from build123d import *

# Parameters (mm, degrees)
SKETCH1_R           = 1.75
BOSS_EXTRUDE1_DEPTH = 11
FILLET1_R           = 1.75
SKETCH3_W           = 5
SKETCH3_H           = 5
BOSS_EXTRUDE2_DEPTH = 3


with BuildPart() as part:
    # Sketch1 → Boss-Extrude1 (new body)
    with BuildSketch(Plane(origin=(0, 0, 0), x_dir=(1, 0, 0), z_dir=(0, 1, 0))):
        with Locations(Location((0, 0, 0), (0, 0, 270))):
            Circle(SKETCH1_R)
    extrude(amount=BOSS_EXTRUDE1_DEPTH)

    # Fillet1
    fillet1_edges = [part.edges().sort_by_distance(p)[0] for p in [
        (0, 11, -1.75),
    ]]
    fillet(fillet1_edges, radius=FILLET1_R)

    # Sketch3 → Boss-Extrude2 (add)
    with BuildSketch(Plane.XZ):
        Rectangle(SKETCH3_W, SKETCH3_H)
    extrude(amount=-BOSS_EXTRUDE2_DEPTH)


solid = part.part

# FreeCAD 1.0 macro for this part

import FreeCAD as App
import Part
import Sketcher

V = App.Vector
Q = App.Units.Quantity


def edges_at(feature, points):
    """Names of the edges that pass closest to the given points."""
    edges = feature.Shape.Edges
    near = lambda p: min(range(len(edges)), key=lambda i: edges[i].distToShape(Part.Vertex(*p))[0])
    return sorted({f"Edge{near(p) + 1}" for p in points})

doc = App.newDocument("Part")
body = doc.addObject("PartDesign::Body", "Body")

# Sketch on XZ plane
sketch1 = body.newObject("Sketcher::SketchObject", "Sketch")
sketch1.AttachmentSupport = (doc.getObject("XZ_Plane"), [""])
sketch1.MapMode = "FlatFace"
sketch1.addGeometry(Part.Circle(V(0, 0, 0), V(0, 0, 1), 1.8), False)
sketch1.addConstraint([
    Sketcher.Constraint("Coincident", 0, 3, -1, 1),
    Sketcher.Constraint("Diameter", 0, Q("3.5 mm")),
])
pad1 = body.newObject("PartDesign::Pad", "Pad")
pad1.Profile = sketch1
pad1.Length = 11
pad1.Reversed = True
doc.recompute()

fillet = body.newObject("PartDesign::Fillet", "Fillet")
fillet.Base = (pad1, edges_at(pad1, [(0, 11, -1.75)]))
fillet.Radius = 1.75

# Sketch on XZ plane
sketch2 = body.newObject("Sketcher::SketchObject", "Sketch001")
sketch2.AttachmentSupport = (doc.getObject("XZ_Plane"), [""])
sketch2.MapMode = "FlatFace"
sketch2.addGeometry([
    Part.LineSegment(V(-2, 2, 0), V(-2, -2, 0)),
    Part.LineSegment(V(-2, -2, 0), V(2, -2, 0)),
    Part.LineSegment(V(2, -2, 0), V(2, 2, 0)),
    Part.LineSegment(V(2, 2, 0), V(-2, 2, 0)),
], False)
sketch2.addConstraint([
    Sketcher.Constraint("Coincident", 0, 2, 1, 1),
    Sketcher.Constraint("Coincident", 1, 2, 2, 1),
    Sketcher.Constraint("Coincident", 2, 2, 3, 1),
    Sketcher.Constraint("Coincident", 3, 2, 0, 1),
    Sketcher.Constraint("Vertical", 0),
    Sketcher.Constraint("Horizontal", 1),
    Sketcher.Constraint("Vertical", 2),
    Sketcher.Constraint("Horizontal", 3),
    Sketcher.Constraint("Symmetric", 0, 2, 2, 2, -1, 1),
    Sketcher.Constraint("Equal", 3, 0),
    Sketcher.Constraint("DistanceX", 1, 1, 1, 2, Q("5 mm")),
])
pad2 = body.newObject("PartDesign::Pad", "Pad001")
pad2.Profile = sketch2
pad2.Length = 3
pad2.Reversed = True

doc.recompute()
